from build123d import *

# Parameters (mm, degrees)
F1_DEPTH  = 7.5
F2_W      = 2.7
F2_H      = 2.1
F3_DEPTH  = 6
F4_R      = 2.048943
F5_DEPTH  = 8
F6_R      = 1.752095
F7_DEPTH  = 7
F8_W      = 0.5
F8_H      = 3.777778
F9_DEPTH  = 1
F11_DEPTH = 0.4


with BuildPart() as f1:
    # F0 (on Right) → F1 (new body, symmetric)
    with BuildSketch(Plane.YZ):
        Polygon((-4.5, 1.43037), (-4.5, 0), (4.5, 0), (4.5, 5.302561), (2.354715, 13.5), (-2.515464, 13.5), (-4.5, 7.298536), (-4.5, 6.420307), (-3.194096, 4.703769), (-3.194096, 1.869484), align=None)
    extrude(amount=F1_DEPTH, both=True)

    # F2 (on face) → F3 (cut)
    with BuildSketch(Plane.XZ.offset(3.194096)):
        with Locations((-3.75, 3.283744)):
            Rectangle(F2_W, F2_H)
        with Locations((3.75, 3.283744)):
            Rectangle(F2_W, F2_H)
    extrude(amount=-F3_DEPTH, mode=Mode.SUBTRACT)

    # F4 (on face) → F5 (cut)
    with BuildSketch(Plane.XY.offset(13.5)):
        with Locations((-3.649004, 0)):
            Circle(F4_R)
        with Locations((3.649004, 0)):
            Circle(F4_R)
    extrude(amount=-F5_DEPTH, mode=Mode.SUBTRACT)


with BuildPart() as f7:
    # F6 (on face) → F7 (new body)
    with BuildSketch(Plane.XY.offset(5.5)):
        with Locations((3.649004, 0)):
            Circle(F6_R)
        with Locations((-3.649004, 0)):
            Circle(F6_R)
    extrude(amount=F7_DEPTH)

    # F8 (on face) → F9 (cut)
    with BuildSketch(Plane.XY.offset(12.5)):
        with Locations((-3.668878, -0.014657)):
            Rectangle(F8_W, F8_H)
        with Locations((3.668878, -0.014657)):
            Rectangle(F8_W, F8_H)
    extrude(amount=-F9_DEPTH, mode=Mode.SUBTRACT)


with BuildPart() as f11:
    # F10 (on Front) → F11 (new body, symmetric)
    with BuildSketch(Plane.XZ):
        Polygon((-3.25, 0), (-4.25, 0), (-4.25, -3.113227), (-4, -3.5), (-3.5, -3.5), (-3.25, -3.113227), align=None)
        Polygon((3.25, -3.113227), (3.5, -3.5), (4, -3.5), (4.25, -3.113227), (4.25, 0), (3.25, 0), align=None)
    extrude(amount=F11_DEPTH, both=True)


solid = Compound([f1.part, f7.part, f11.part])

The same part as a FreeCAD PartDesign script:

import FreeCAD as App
import Part
import Sketcher

V = App.Vector
Q = App.Units.Quantity


def add_polygon(sketch, points):
    """Adds a closed chain of lines whose ends are joined by coincident constraints."""
    first, n = sketch.GeometryCount, len(points)
    for a, b in zip(points, points[1:] + points[:1]):
        sketch.addGeometry(Part.LineSegment(App.Vector(*a, 0), App.Vector(*b, 0)), False)
    for i in range(n):
        sketch.addConstraint(Sketcher.Constraint("Coincident", first + i, 2, first + (i + 1) % n, 1))

doc = App.newDocument("Part")
body = doc.addObject("PartDesign::Body", "Body")

sketch1 = body.newObject("Sketcher::SketchObject", "Sketch")
sketch1.AttachmentSupport = (doc.getObject("YZ_Plane"), [""])
sketch1.MapMode = "FlatFace"
add_polygon(sketch1, [(-4.5, 1.43037), (-4.5, 0), (4.5, 0), (4.5, 5.302561), (2.354715, 13.5), (-2.515464, 13.5), (-4.5, 7.298536), (-4.5, 6.420307), (-3.194096, 4.703769), (-3.194096, 1.869484)])
sketch1.addConstraint([
    Sketcher.Constraint("Vertical", 0),
    Sketcher.Constraint("Horizontal", 1),
    Sketcher.Constraint("Vertical", 2),
    Sketcher.Constraint("Horizontal", 4),
    Sketcher.Constraint("Vertical", 6),
    Sketcher.Constraint("Vertical", 8),
    Sketcher.Constraint("Symmetric", 0, 2, 1, 2, -1, 1),
    Sketcher.Constraint("Vertical", 0, 2, 5, 2),
    Sketcher.Constraint("DistanceX", 1, 1, 1, 2, Q("9 mm")),
    Sketcher.Constraint("DistanceY", -1, 1, 3, 2, Q("13.5 mm")),
    Sketcher.Constraint("DistanceX", 4, 2, 4, 1, Q("4.870179 mm")),
    Sketcher.Constraint("DistanceY", 0, 2, 0, 1, Q("1.43037 mm")),
    Sketcher.Constraint("DistanceY", 2, 1, 2, 2, Q("5.302561 mm")),
    Sketcher.Constraint("DistanceY", 6, 2, 6, 1, Q("0.878229 mm")),
    Sketcher.Constraint("DistanceY", 9, 2, 7, 2, Q("3.273399 mm")),
    Sketcher.Constraint("DistanceY", 8, 2, 8, 1, Q("2.834285 mm")),
    Sketcher.Constraint("DistanceX", 7, 2, 4, 2, Q("0.678632 mm")),
    Sketcher.Constraint("Distance", 3, Q("8.473503 mm")),
    Sketcher.Constraint("Distance", 5, Q("6.511262 mm")),
])
pad1 = body.newObject("PartDesign::Pad", "Pad")
pad1.Profile = sketch1
pad1.Length = 15
pad1.Midplane = True

sketch2 = body.newObject("Sketcher::SketchObject", "Sketch001")
sketch2.AttachmentSupport = (doc.getObject("XZ_Plane"), [""])
sketch2.MapMode = "FlatFace"
sketch2.AttachmentOffset = App.Placement(V(0, 0, 3.194096), App.Rotation())
add_polygon(sketch2, [(-5.1, 4.333744), (-5.1, 2.233744), (-2.4, 2.233744), (-2.4, 4.333744)])
add_polygon(sketch2, [(2.4, 4.333744), (2.4, 2.233744), (5.1, 2.233744), (5.1, 4.333744)])
sketch2.addConstraint([
    Sketcher.Constraint("Vertical", 0),
    Sketcher.Constraint("Horizontal", 1),
    Sketcher.Constraint("Vertical", 2),
    Sketcher.Constraint("Horizontal", 3),
    Sketcher.Constraint("Vertical", 4),
    Sketcher.Constraint("Horizontal", 5),
    Sketcher.Constraint("Vertical", 6),
    Sketcher.Constraint("Horizontal", 7),
    Sketcher.Constraint("Symmetric", 1, 2, 4, 2, -2),
    Sketcher.Constraint("Symmetric", 3, 2, 6, 2, -2),
    Sketcher.Constraint("DistanceX", 1, 1, 1, 2, Q("2.7 mm")),
    Sketcher.Constraint("DistanceY", 0, 2, 0, 1, Q("2.1 mm")),
    Sketcher.Constraint("DistanceX", 0, 2, -1, 1, Q("5.1 mm")),
    Sketcher.Constraint("DistanceY", -1, 1, 0, 2, Q("2.233744 mm")),
])
pocket1 = body.newObject("PartDesign::Pocket", "Pocket")
pocket1.Profile = sketch2
pocket1.Length = 6

sketch3 = body.newObject("Sketcher::SketchObject", "Sketch002")
sketch3.AttachmentSupport = (doc.getObject("XY_Plane"), [""])
sketch3.MapMode = "FlatFace"
sketch3.AttachmentOffset = App.Placement(V(0, 0, 13.5), App.Rotation())
sketch3.addGeometry([
    Part.Circle(V(-3.649004, 0, 0), V(0, 0, 1), 2.048943),
    Part.Circle(V(3.649004, 0, 0), V(0, 0, 1), 2.048943),
], False)
sketch3.addConstraint([
    Sketcher.Constraint("Equal", 0, 1),
    Sketcher.Constraint("Symmetric", 0, 3, 1, 3, -1, 1),
    Sketcher.Constraint("PointOnObject", 0, 3, -1),
    Sketcher.Constraint("Diameter", 0, Q("4.097886 mm")),
    Sketcher.Constraint("DistanceX", 0, 3, 1, 3, Q("7.298008 mm")),
])
pocket2 = body.newObject("PartDesign::Pocket", "Pocket001")
pocket2.Profile = sketch3
pocket2.Length = 8
body2 = doc.addObject("PartDesign::Body", "Body001")
body2.AllowCompound = True

sketch4 = body2.newObject("Sketcher::SketchObject", "Sketch003")
sketch4.AttachmentSupport = (doc.getObject("XY_Plane001"), [""])
sketch4.MapMode = "FlatFace"
sketch4.AttachmentOffset = App.Placement(V(0, 0, 5.5), App.Rotation())
sketch4.addGeometry([
    Part.Circle(V(3.649004, 0, 0), V(0, 0, 1), 1.752095),
    Part.Circle(V(-3.649004, 0, 0), V(0, 0, 1), 1.752095),
], False)
sketch4.addConstraint([
    Sketcher.Constraint("Equal", 0, 1),
    Sketcher.Constraint("Symmetric", 0, 3, 1, 3, -1, 1),
    Sketcher.Constraint("PointOnObject", 0, 3, -1),
    Sketcher.Constraint("Diameter", 0, Q("3.50419 mm")),
    Sketcher.Constraint("DistanceX", 1, 3, 0, 3, Q("7.298008 mm")),
])
pad2 = body2.newObject("PartDesign::Pad", "Pad001")
pad2.Profile = sketch4
pad2.Length = 7

sketch5 = body2.newObject("Sketcher::SketchObject", "Sketch004")
sketch5.AttachmentSupport = (doc.getObject("XY_Plane001"), [""])
sketch5.MapMode = "FlatFace"
sketch5.AttachmentOffset = App.Placement(V(0, 0, 12.5), App.Rotation())
add_polygon(sketch5, [(-3.918878, 1.874232), (-3.918878, -1.903546), (-3.418878, -1.903546), (-3.418878, 1.874232)])
add_polygon(sketch5, [(3.418878, 1.874232), (3.418878, -1.903546), (3.918878, -1.903546), (3.918878, 1.874232)])
sketch5.addConstraint([
    Sketcher.Constraint("Vertical", 0),
    Sketcher.Constraint("Horizontal", 1),
    Sketcher.Constraint("Vertical", 2),
    Sketcher.Constraint("Horizontal", 3),
    Sketcher.Constraint("Vertical", 4),
    Sketcher.Constraint("Horizontal", 5),
    Sketcher.Constraint("Vertical", 6),
    Sketcher.Constraint("Horizontal", 7),
    Sketcher.Constraint("Symmetric", 1, 2, 4, 2, -2),
    Sketcher.Constraint("Symmetric", 3, 2, 6, 2, -2),
    Sketcher.Constraint("DistanceX", 1, 1, 1, 2, Q("0.5 mm")),
    Sketcher.Constraint("DistanceY", 0, 2, 0, 1, Q("3.777778 mm")),
    Sketcher.Constraint("DistanceY", -1, 1, 2, 2, Q("1.874232 mm")),
    Sketcher.Constraint("DistanceX", 0, 2, -1, 1, Q("3.918878 mm")),
])
pocket3 = body2.newObject("PartDesign::Pocket", "Pocket002")
pocket3.Profile = sketch5
pocket3.Length = 1
body3 = doc.addObject("PartDesign::Body", "Body002")
body3.AllowCompound = True

sketch6 = body3.newObject("Sketcher::SketchObject", "Sketch005")
sketch6.AttachmentSupport = (doc.getObject("XZ_Plane002"), [""])
sketch6.MapMode = "FlatFace"
add_polygon(sketch6, [(-3.25, 0), (-4.25, 0), (-4.25, -3.113227), (-4, -3.5), (-3.5, -3.5), (-3.25, -3.113227)])
add_polygon(sketch6, [(3.25, -3.113227), (3.5, -3.5), (4, -3.5), (4.25, -3.113227), (4.25, 0), (3.25, 0)])
sketch6.addConstraint([
    Sketcher.Constraint("Horizontal", 0),
    Sketcher.Constraint("Vertical", 1),
    Sketcher.Constraint("Horizontal", 3),
    Sketcher.Constraint("Vertical", 5),
    Sketcher.Constraint("Horizontal", 7),
    Sketcher.Constraint("Vertical", 9),
    Sketcher.Constraint("Horizontal", 10),
    Sketcher.Constraint("Vertical", 11),
    Sketcher.Constraint("Symmetric", 0, 2, 9, 2, -1, 1),
    Sketcher.Constraint("Symmetric", 3, 2, 6, 2, -2),
    Sketcher.Constraint("Symmetric", 5, 2, 10, 2, -2),
    Sketcher.Constraint("Parallel", 2, 6),
    Sketcher.Constraint("Parallel", 4, 8),
    Sketcher.Constraint("Horizontal", 1, 2, 4, 2),
    Sketcher.Constraint("Horizontal", 4, 2, 8, 2),
    Sketcher.Constraint("Horizontal", 8, 2, 11, 2),
    Sketcher.Constraint("DistanceX", 0, 2, 0, 1, Q("1 mm")),
    Sketcher.Constraint("DistanceX", 3, 1, 3, 2, Q("0.5 mm")),
    Sketcher.Constraint("DistanceX", 2, 2, -1, 1, Q("4 mm")),
    Sketcher.Constraint("DistanceY", 2, 2, -1, 1, Q("3.5 mm")),
    Sketcher.Constraint("DistanceY", 1, 2, 1, 1, Q("3.113227 mm")),
])
pad3 = body3.newObject("PartDesign::Pad", "Pad002")
pad3.Profile = sketch6
pad3.Length = 0.8
pad3.Midplane = True

doc.recompute()
